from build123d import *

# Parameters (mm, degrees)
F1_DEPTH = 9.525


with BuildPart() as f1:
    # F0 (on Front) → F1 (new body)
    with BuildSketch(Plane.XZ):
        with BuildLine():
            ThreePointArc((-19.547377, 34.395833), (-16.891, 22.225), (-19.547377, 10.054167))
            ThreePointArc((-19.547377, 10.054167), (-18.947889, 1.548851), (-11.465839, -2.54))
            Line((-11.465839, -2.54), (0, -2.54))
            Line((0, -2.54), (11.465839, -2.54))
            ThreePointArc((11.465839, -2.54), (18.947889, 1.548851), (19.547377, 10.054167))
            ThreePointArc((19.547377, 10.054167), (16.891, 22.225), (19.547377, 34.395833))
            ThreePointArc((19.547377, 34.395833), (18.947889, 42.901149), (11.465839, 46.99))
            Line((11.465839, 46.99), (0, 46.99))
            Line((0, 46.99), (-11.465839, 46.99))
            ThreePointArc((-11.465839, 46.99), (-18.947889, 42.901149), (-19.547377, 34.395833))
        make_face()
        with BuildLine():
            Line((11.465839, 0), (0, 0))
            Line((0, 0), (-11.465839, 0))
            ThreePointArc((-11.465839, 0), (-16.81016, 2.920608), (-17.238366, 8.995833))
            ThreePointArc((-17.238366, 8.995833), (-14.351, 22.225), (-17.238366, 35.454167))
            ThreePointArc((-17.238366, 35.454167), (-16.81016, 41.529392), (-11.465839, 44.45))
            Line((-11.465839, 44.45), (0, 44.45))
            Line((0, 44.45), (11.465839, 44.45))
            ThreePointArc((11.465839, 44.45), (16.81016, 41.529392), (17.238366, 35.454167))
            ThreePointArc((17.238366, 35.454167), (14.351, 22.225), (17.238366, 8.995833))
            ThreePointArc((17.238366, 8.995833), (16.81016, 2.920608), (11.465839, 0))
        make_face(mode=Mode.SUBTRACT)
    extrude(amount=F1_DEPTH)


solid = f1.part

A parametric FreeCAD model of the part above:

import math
import FreeCAD as App
import Part
import Sketcher

V = App.Vector
Q = App.Units.Quantity

doc = App.newDocument("Part")
params = doc.addObject("Spreadsheet::Sheet", "Params")
for row, (alias, value) in enumerate([
    ("sketch1_radius", "0.35 in"),
    ("sketch1_radius2", "0.25 in"),
    ("sketch1_radius3", "1.25 in"),
    ("pad1_length", "0.375 in"),
], start=1):
    params.set(f"A{row}", alias)
    params.set(f"B{row}", "=" + value)
    params.setAlias(f"B{row}", alias)

body = doc.addObject("PartDesign::Body", "Body")

# Sketch on XZ plane
sketch1 = doc.addObject("Sketcher::SketchObject", "Sketch")
body.addObject(sketch1)
sketch1.AttachmentSupport = (doc.XZ_Plane, [""])
sketch1.MapMode = "FlatFace"
sketch1.addGeometry([
    Part.ArcOfCircle(Part.Circle(V(-46, 22, 0), V(0, 0, 1), 29), math.radians(-25), math.radians(25)),  # 0
    Part.ArcOfCircle(Part.Circle(V(-11, 6, 0), V(0, 0, 1), 9), math.radians(155), math.radians(270)),  # 1
    Part.LineSegment(V(-11, -3, 0), V(11, -3, 0)),  # 2
    Part.ArcOfCircle(Part.Circle(V(11, 6, 0), V(0, 0, 1), 9), math.radians(-90), math.radians(25)),  # 3
    Part.ArcOfCircle(Part.Circle(V(46, 22, 0), V(0, 0, 1), 29), math.radians(155), math.radians(205)),  # 4
    Part.ArcOfCircle(Part.Circle(V(11, 38, 0), V(0, 0, 1), 9), math.radians(-25), math.radians(90)),  # 5
    Part.LineSegment(V(11, 47, 0), V(-11, 47, 0)),  # 6
    Part.ArcOfCircle(Part.Circle(V(-11, 38, 0), V(0, 0, 1), 9), math.radians(90), math.radians(205)),  # 7
    Part.ArcOfCircle(Part.Circle(V(11, 6, 0), V(0, 0, 1), 6), math.radians(-90), math.radians(25)),  # 8
    Part.LineSegment(V(11, 0, 0), V(-11, 0, 0)),  # 9
    Part.ArcOfCircle(Part.Circle(V(-11, 6, 0), V(0, 0, 1), 6), math.radians(155), math.radians(270)),  # 10
    Part.ArcOfCircle(Part.Circle(V(-46, 22, 0), V(0, 0, 1), 32), math.radians(-25), math.radians(25)),  # 11
    Part.ArcOfCircle(Part.Circle(V(-11, 38, 0), V(0, 0, 1), 6), math.radians(90), math.radians(205)),  # 12
    Part.LineSegment(V(-11, 44, 0), V(11, 44, 0)),  # 13
    Part.ArcOfCircle(Part.Circle(V(11, 38, 0), V(0, 0, 1), 6), math.radians(-25), math.radians(90)),  # 14
    Part.ArcOfCircle(Part.Circle(V(46, 22, 0), V(0, 0, 1), 32), math.radians(155), math.radians(205)),  # 15
], False)
sketch1.addConstraint([
    Sketcher.Constraint("Tangent", 0, 1, 1, 1),
    Sketcher.Constraint("Tangent", 1, 2, 2, 1),
    Sketcher.Constraint("Tangent", 2, 2, 3, 1),
    Sketcher.Constraint("Tangent", 3, 2, 4, 2),
    Sketcher.Constraint("Tangent", 4, 1, 5, 1),
    Sketcher.Constraint("Tangent", 5, 2, 6, 1),
    Sketcher.Constraint("Tangent", 6, 2, 7, 1),
    Sketcher.Constraint("Tangent", 7, 2, 0, 2),
    Sketcher.Constraint("Tangent", 8, 1, 9, 1),
    Sketcher.Constraint("Tangent", 9, 2, 10, 2),
    Sketcher.Constraint("Tangent", 10, 1, 11, 1),
    Sketcher.Constraint("Tangent", 11, 2, 12, 2),
    Sketcher.Constraint("Tangent", 12, 1, 13, 1),
    Sketcher.Constraint("Tangent", 13, 2, 14, 2),
    Sketcher.Constraint("Tangent", 14, 1, 15, 1),
    Sketcher.Constraint("Tangent", 15, 2, 8, 2),
    Sketcher.Constraint("Horizontal", 2),
    Sketcher.Constraint("Horizontal", 6),
    Sketcher.Constraint("Horizontal", 9),
    Sketcher.Constraint("Horizontal", 13),
    Sketcher.Constraint("Coincident", 8, 3, 3, 3),
    Sketcher.Constraint("Coincident", 10, 3, 1, 3),
    Sketcher.Constraint("Coincident", 11, 3, 0, 3),
    Sketcher.Constraint("Coincident", 12, 3, 7, 3),
    Sketcher.Constraint("Coincident", 14, 3, 5, 3),
    Sketcher.Constraint("Equal", 1, 3),
    Sketcher.Constraint("Equal", 0, 4),
    Sketcher.Constraint("Equal", 3, 5),
    Sketcher.Constraint("Equal", 5, 7),
    Sketcher.Constraint("Equal", 11, 15),
    Sketcher.Constraint("Symmetric", 8, 1, 9, 2, -1, 1),
    Sketcher.Constraint("Horizontal", 0, 3, 4, 3),
    Sketcher.Constraint("Vertical", 3, 3, 5, 3),
    Sketcher.Constraint("Radius", 1, Q("0.35 in")),
    Sketcher.Constraint("Radius", 8, Q("0.25 in")),
    Sketcher.Constraint("Radius", 11, Q("1.25 in")),
    Sketcher.Constraint("DistanceY", 0, 1, 11, 2, Q("1 in")),
    Sketcher.Constraint("DistanceX", 11, 3, -1, 1, Q("1.815 in")),
])
sketch1.setExpression("Constraints[33]", "Params.sketch1_radius")
sketch1.setExpression("Constraints[34]", "Params.sketch1_radius2")
sketch1.setExpression("Constraints[35]", "Params.sketch1_radius3")
pad1 = doc.addObject("PartDesign::Pad", "Pad")
body.addObject(pad1)
pad1.Profile = sketch1
pad1.setExpression("Length", "Params.pad1_length")

doc.recompute()
